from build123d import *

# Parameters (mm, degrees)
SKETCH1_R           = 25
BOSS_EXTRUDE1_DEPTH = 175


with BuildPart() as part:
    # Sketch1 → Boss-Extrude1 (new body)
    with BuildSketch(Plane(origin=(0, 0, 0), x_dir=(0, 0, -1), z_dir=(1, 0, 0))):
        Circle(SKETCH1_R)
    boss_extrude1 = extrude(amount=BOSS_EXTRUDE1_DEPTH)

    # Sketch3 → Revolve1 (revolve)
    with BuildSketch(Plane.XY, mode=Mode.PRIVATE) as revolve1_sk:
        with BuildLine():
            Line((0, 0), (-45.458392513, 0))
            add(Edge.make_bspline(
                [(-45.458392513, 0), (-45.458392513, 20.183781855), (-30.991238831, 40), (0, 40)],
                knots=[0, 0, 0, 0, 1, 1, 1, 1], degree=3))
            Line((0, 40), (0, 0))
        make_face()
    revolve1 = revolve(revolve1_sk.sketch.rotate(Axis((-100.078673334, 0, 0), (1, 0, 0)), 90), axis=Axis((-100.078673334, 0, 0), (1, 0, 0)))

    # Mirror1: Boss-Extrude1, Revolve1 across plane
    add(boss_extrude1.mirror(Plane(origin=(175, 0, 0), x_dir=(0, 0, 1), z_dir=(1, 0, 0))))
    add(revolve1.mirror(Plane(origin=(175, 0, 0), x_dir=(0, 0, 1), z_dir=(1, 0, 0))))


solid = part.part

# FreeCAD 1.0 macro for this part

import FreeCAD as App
import Part
import Sketcher

V = App.Vector
Q = App.Units.Quantity

doc = App.newDocument("Part")
body = doc.addObject("PartDesign::Body", "Body")

sketch1 = body.newObject("Sketcher::SketchObject", "Sketch")
sketch1.AttachmentSupport = (doc.getObject("YZ_Plane"), [""])
sketch1.MapMode = "FlatFace"
sketch1.addGeometry(Part.Circle(V(0, 0, 0), V(0, 0, 1), 25), False)
sketch1.addConstraint(Sketcher.Constraint("Coincident", 0, 3, -1, 1))
sketch1.addConstraint(Sketcher.Constraint("Diameter", 0, Q("50 mm")))
pad1 = body.newObject("PartDesign::Pad", "Pad")
pad1.Profile = sketch1
pad1.Length = 175

sketch2 = body.newObject("Sketcher::SketchObject", "Sketch001")
sketch2.AttachmentSupport = (doc.getObject("XY_Plane"), [""])
sketch2.MapMode = "FlatFace"
sketch2.addGeometry(Part.LineSegment(V(-45.458393, 0, 0), V(0, 0, 0)), False)
sketch2.addGeometry(Part.LineSegment(V(0, 0, 0), V(0, 40, 0)), False)
sketch2.addGeometry(Part.BSplineCurve([V(-45.458393, 0, 0), V(-45.458393, 20.183782, 0), V(-30.991239, 40, 0), V(0, 40, 0)], [4, 4], [0, 1], False, 3, [1, 1, 1, 1], False), False)
sketch2.addConstraint(Sketcher.Constraint("Block", 2))
sketch2.addConstraint(Sketcher.Constraint("Coincident", 0, 2, 1, 1))
sketch2.addConstraint(Sketcher.Constraint("Coincident", 1, 2, 2, 2))
sketch2.addConstraint(Sketcher.Constraint("Coincident", 2, 1, 0, 1))
sketch2.addConstraint(Sketcher.Constraint("Horizontal", 0))
sketch2.addConstraint(Sketcher.Constraint("Vertical", 1))
revolution = body.newObject("PartDesign::Revolution", "Revolution")
revolution.Profile = sketch2
revolution.ReferenceAxis = (sketch2, ["H_Axis"])
revolution.Angle = 360
doc.recompute()

datumplane = body.newObject("PartDesign::Plane", "DatumPlane")
datumplane.AttachmentSupport = (doc.getObject("YZ_Plane"), [""])
datumplane.MapMode = "FlatFace"
datumplane.AttachmentOffset = App.Placement(V(0, 0, 175), App.Rotation())
mirrored = body.newObject("PartDesign::Mirrored", "Mirrored")
mirrored.Originals = [pad1, revolution]
mirrored.MirrorPlane = (datumplane, [""])
body.Tip = mirrored

doc.recompute()
